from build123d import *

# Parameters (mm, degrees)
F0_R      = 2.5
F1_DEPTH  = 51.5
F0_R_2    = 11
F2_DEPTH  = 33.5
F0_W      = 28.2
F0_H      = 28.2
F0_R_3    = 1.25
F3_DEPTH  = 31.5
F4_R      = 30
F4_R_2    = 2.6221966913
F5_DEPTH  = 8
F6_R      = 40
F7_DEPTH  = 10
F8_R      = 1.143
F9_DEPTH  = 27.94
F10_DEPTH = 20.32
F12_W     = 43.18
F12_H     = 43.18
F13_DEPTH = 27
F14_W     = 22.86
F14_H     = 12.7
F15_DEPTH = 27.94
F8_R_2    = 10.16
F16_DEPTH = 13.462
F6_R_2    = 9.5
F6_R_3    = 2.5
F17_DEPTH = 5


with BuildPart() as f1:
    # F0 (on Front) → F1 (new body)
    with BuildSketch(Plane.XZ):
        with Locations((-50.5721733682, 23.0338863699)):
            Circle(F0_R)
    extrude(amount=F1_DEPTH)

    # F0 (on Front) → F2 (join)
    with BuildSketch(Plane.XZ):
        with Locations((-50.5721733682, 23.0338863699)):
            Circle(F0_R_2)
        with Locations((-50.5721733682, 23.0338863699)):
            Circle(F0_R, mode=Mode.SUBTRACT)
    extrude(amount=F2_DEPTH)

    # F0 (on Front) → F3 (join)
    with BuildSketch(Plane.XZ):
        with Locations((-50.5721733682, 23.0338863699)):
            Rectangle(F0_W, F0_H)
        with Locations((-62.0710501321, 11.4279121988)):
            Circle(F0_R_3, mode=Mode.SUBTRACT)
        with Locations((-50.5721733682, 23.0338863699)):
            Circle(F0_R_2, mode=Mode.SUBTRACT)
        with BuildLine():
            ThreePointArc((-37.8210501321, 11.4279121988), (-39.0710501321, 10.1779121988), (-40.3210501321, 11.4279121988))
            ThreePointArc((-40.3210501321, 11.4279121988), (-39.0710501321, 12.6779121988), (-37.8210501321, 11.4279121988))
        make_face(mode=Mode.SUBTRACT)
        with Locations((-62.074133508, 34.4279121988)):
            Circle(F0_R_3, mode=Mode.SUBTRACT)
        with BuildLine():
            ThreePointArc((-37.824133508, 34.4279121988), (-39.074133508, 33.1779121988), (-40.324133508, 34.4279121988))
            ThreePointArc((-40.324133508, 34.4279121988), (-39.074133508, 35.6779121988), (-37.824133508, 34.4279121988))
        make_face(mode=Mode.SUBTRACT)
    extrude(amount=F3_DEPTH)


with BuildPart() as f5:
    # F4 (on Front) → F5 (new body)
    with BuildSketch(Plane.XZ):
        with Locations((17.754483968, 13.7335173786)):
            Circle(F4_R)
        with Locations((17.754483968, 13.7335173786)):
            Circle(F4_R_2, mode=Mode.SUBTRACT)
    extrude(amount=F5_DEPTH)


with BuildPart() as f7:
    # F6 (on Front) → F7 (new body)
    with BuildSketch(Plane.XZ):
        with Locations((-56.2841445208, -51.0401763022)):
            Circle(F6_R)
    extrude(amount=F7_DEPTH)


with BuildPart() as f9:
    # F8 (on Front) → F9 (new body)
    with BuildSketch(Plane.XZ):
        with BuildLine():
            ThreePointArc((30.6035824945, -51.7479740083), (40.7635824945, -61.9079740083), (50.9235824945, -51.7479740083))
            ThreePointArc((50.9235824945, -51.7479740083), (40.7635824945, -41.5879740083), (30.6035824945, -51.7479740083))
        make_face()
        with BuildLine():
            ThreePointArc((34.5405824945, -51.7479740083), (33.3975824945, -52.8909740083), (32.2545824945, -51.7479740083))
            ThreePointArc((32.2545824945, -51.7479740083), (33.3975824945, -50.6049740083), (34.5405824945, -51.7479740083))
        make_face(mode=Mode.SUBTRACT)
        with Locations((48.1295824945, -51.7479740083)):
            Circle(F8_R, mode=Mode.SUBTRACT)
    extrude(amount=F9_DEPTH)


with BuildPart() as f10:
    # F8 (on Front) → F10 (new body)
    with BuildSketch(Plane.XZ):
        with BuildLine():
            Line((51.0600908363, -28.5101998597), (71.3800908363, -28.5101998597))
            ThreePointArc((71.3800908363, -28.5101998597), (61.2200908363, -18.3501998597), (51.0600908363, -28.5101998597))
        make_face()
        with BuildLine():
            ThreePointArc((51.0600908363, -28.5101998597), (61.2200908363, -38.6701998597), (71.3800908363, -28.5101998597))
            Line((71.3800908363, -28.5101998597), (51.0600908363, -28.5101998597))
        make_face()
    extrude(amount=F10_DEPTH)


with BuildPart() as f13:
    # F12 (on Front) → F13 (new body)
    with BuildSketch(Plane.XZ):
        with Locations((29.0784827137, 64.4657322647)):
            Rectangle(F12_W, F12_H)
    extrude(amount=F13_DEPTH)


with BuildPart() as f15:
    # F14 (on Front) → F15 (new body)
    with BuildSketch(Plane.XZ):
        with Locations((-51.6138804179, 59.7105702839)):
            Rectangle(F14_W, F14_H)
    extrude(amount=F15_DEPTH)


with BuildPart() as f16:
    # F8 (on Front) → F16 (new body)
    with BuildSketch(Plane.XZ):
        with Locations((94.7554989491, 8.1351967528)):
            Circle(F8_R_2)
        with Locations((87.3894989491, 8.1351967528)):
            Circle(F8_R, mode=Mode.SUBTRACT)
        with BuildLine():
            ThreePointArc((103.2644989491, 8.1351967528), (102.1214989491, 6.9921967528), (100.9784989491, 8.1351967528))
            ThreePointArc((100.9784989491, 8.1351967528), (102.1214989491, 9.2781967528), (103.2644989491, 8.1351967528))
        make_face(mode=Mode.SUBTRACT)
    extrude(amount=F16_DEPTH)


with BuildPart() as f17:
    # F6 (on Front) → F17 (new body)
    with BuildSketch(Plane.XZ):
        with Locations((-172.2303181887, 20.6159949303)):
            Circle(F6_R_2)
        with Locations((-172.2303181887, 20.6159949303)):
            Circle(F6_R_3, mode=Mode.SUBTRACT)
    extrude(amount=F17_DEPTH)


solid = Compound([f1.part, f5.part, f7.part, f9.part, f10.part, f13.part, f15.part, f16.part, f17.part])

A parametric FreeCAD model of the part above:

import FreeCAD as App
import Part
import Sketcher
Q = App.Units.Quantity

doc = App.newDocument("Part")
params = doc.addObject("Spreadsheet::Sheet", "Params")
for row, (alias, value) in enumerate([
    ("sketch1_diameter", "5 mm"),
    ("pad1_length", "51.5 mm"),
    ("sketch2_diameter", "22 mm"),
    ("sketch2_diameter2", "5 mm"),
    ("pad2_length", "33.5 mm"),
    ("sketch3_diameter", "22 mm"),
    ("sketch3_diameter2", "2.5 mm"),
    ("sketch3_width", "28.2 mm"),
    ("pad3_length", "31.5 mm"),
    ("sketch4_diameter", "60 mm"),
    ("pad4_length", "8 mm"),
    ("sketch5_diameter", "80 mm"),
    ("pad5_length", "10 mm"),
    ("sketch6_diameter", "20.32 mm"),
    ("pad6_length", "27.94 mm"),
    ("sketch7_diameter", "20.32 mm"),
    ("pad7_length", "20.32 mm"),
    ("sketch8_width", "43.18 mm"),
    ("pad8_length", "27 mm"),
    ("sketch9_height", "12.7 mm"),
    ("sketch9_width", "22.86 mm"),
    ("pad9_length", "27.94 mm"),
    ("sketch10_diameter", "20.32 mm"),
    ("pad10_length", "13.462 mm"),
    ("sketch11_diameter", "19 mm"),
    ("sketch11_diameter2", "5 mm"),
    ("pad11_length", "5 mm"),
], start=1):
    params.set(f"A{row}", alias)
    params.set(f"B{row}", "=" + value)
    params.setAlias(f"B{row}", alias)

body = doc.addObject("PartDesign::Body", "Body")

# Sketch on XZ plane
sketch1 = doc.addObject("Sketcher::SketchObject", "Sketch")
body.addObject(sketch1)
sketch1.AttachmentSupport = (doc.XZ_Plane, [""])
sketch1.MapMode = "FlatFace"
sketch1.addGeometry(Part.Circle(App.Vector(-50.6, 23, 0), App.Vector(0, 0, 1), 2.5), False)
sketch1.addConstraint([
    Sketcher.Constraint("Diameter", 0, Q("5 mm")),
    Sketcher.Constraint("DistanceX", 0, 3, -1, 1, Q("50.572173 mm")),
    Sketcher.Constraint("DistanceY", -1, 1, 0, 3, Q("23.033886 mm")),
])
sketch1.setExpression("Constraints[0]", "Params.sketch1_diameter")
pad1 = doc.addObject("PartDesign::Pad", "Pad")
body.addObject(pad1)
pad1.Profile = sketch1
pad1.setExpression("Length", "Params.pad1_length")

# Sketch on XZ plane
sketch2 = doc.addObject("Sketcher::SketchObject", "Sketch001")
body.addObject(sketch2)
sketch2.AttachmentSupport = (doc.XZ_Plane, [""])
sketch2.MapMode = "FlatFace"
sketch2.addGeometry([
    Part.Circle(App.Vector(-50.6, 23, 0), App.Vector(0, 0, 1), 11),
    Part.Circle(App.Vector(-50.6, 23, 0), App.Vector(0, 0, 1), 2.5),
], False)
sketch2.addConstraint([
    Sketcher.Constraint("Coincident", 1, 3, 0, 3),
    Sketcher.Constraint("Diameter", 0, Q("22 mm")),
    Sketcher.Constraint("Diameter", 1, Q("5 mm")),
    Sketcher.Constraint("DistanceX", 0, 3, -1, 1, Q("50.572173 mm")),
    Sketcher.Constraint("DistanceY", -1, 1, 0, 3, Q("23.033886 mm")),
])
sketch2.setExpression("Constraints[1]", "Params.sketch2_diameter")
sketch2.setExpression("Constraints[2]", "Params.sketch2_diameter2")
pad2 = doc.addObject("PartDesign::Pad", "Pad001")
body.addObject(pad2)
pad2.Profile = sketch2
pad2.setExpression("Length", "Params.pad2_length")

# Sketch on XZ plane
sketch3 = doc.addObject("Sketcher::SketchObject", "Sketch002")
body.addObject(sketch3)
sketch3.AttachmentSupport = (doc.XZ_Plane, [""])
sketch3.MapMode = "FlatFace"
sketch3.addGeometry([
    Part.LineSegment(App.Vector(-64.7, 37.1, 0), App.Vector(-64.7, 8.9, 0)),  # 0
    Part.LineSegment(App.Vector(-64.7, 8.9, 0), App.Vector(-36.5, 8.9, 0)),  # 1
    Part.LineSegment(App.Vector(-36.5, 8.9, 0), App.Vector(-36.5, 37.1, 0)),  # 2
    Part.LineSegment(App.Vector(-36.5, 37.1, 0), App.Vector(-64.7, 37.1, 0)),  # 3
    Part.Circle(App.Vector(-62.1, 11.4, 0), App.Vector(0, 0, 1), 1.2),  # 4
    Part.Circle(App.Vector(-39.1, 11.4, 0), App.Vector(0, 0, 1), 1.2),  # 5
    Part.Circle(App.Vector(-62.1, 34.4, 0), App.Vector(0, 0, 1), 1.2),  # 6
    Part.Circle(App.Vector(-50.6, 23, 0), App.Vector(0, 0, 1), 11),  # 7
    Part.Circle(App.Vector(-39.1, 34.4, 0), App.Vector(0, 0, 1), 1.2),  # 8
], False)
sketch3.addConstraint([
    Sketcher.Constraint("Coincident", 0, 2, 1, 1),
    Sketcher.Constraint("Coincident", 1, 2, 2, 1),
    Sketcher.Constraint("Coincident", 2, 2, 3, 1),
    Sketcher.Constraint("Coincident", 3, 2, 0, 1),
    Sketcher.Constraint("Vertical", 0),
    Sketcher.Constraint("Horizontal", 1),
    Sketcher.Constraint("Vertical", 2),
    Sketcher.Constraint("Horizontal", 3),
    Sketcher.Constraint("Equal", 4, 5),
    Sketcher.Constraint("Equal", 5, 6),
    Sketcher.Constraint("Equal", 6, 8),
    Sketcher.Constraint("Horizontal", 4, 3, 5, 3),
    Sketcher.Constraint("Horizontal", 6, 3, 8, 3),
    Sketcher.Constraint("Equal", 3, 0),
    Sketcher.Constraint("Diameter", 7, Q("22 mm")),
    Sketcher.Constraint("Diameter", 4, Q("2.5 mm")),
    Sketcher.Constraint("DistanceX", 1, 1, 1, 2, Q("28.2 mm")),
    Sketcher.Constraint("DistanceX", 4, 3, 5, 3, Q("23 mm")),
    Sketcher.Constraint("DistanceY", 4, 3, 6, 3, Q("23 mm")),
    Sketcher.Constraint("DistanceX", 6, 3, 8, 3, Q("23 mm")),
    Sketcher.Constraint("DistanceX", 0, 2, 7, 3, Q("14.1 mm")),
    Sketcher.Constraint("DistanceY", 0, 2, 7, 3, Q("14.1 mm")),
    Sketcher.Constraint("DistanceX", 4, 3, -1, 1, Q("62.07105 mm")),
    Sketcher.Constraint("DistanceX", 6, 3, 7, 3, Q("11.50196 mm")),
    Sketcher.Constraint("DistanceY", -1, 1, 4, 3, Q("11.427912 mm")),
    Sketcher.Constraint("DistanceX", 6, 3, -1, 1, Q("62.074134 mm")),
    Sketcher.Constraint("DistanceY", -1, 1, 7, 3, Q("23.033886 mm")),
])
sketch3.setExpression("Constraints[14]", "Params.sketch3_diameter")
sketch3.setExpression("Constraints[15]", "Params.sketch3_diameter2")
sketch3.setExpression("Constraints[16]", "Params.sketch3_width")
pad3 = doc.addObject("PartDesign::Pad", "Pad002")
body.addObject(pad3)
pad3.Profile = sketch3
pad3.setExpression("Length", "Params.pad3_length")
body2 = doc.addObject("PartDesign::Body", "Body001")

# Sketch on XZ plane
sketch4 = doc.addObject("Sketcher::SketchObject", "Sketch003")
body2.addObject(sketch4)
sketch4.AttachmentSupport = (doc.getObject("XZ_Plane001"), [""])
sketch4.MapMode = "FlatFace"
sketch4.addGeometry([
    Part.Circle(App.Vector(17.8, 13.7, 0), App.Vector(0, 0, 1), 30),
    Part.Circle(App.Vector(17.8, 13.7, 0), App.Vector(0, 0, 1), 2.6),
], False)
sketch4.addConstraint([
    Sketcher.Constraint("Coincident", 1, 3, 0, 3),
    Sketcher.Constraint("Diameter", 0, Q("60 mm")),
    Sketcher.Constraint("Diameter", 1, Q("5.244393 mm")),
    Sketcher.Constraint("DistanceX", -1, 1, 0, 3, Q("17.754484 mm")),
    Sketcher.Constraint("DistanceY", -1, 1, 0, 3, Q("13.733517 mm")),
])
sketch4.setExpression("Constraints[1]", "Params.sketch4_diameter")
pad4 = doc.addObject("PartDesign::Pad", "Pad003")
body2.addObject(pad4)
pad4.Profile = sketch4
pad4.setExpression("Length", "Params.pad4_length")
body3 = doc.addObject("PartDesign::Body", "Body002")

# Sketch on XZ plane
sketch5 = doc.addObject("Sketcher::SketchObject", "Sketch004")
body3.addObject(sketch5)
sketch5.AttachmentSupport = (doc.getObject("XZ_Plane002"), [""])
sketch5.MapMode = "FlatFace"
sketch5.addGeometry(Part.Circle(App.Vector(-56, -51, 0), App.Vector(0, 0, 1), 40), False)
sketch5.addConstraint([
    Sketcher.Constraint("Diameter", 0, Q("80 mm")),
    Sketcher.Constraint("DistanceX", 0, 3, -1, 1, Q("56.284145 mm")),
    Sketcher.Constraint("DistanceY", 0, 3, -1, 1, Q("51.040176 mm")),
])
sketch5.setExpression("Constraints[0]", "Params.sketch5_diameter")
pad5 = doc.addObject("PartDesign::Pad", "Pad004")
body3.addObject(pad5)
pad5.Profile = sketch5
pad5.setExpression("Length", "Params.pad5_length")
body4 = doc.addObject("PartDesign::Body", "Body003")

# Sketch on XZ plane
sketch6 = doc.addObject("Sketcher::SketchObject", "Sketch005")
body4.addObject(sketch6)
sketch6.AttachmentSupport = (doc.getObject("XZ_Plane003"), [""])
sketch6.MapMode = "FlatFace"
sketch6.addGeometry([
    Part.Circle(App.Vector(40.8, -51.7, 0), App.Vector(0, 0, 1), 10.2),
    Part.Circle(App.Vector(33.4, -51.7, 0), App.Vector(0, 0, 1), 1.1),
    Part.Circle(App.Vector(48.1, -51.7, 0), App.Vector(0, 0, 1), 1.1),
], False)
sketch6.addConstraint([
    Sketcher.Constraint("Equal", 1, 2),
    Sketcher.Constraint("Horizontal", 0, 3, 1, 3),
    Sketcher.Constraint("Horizontal", 1, 3, 2, 3),
    Sketcher.Constraint("Diameter", 0, Q("20.32 mm")),
    Sketcher.Constraint("Diameter", 1, Q("2.286 mm")),
    Sketcher.Constraint("DistanceX", 1, 3, 0, 3, Q("7.366 mm")),
    Sketcher.Constraint("DistanceX", 0, 3, 2, 3, Q("7.366 mm")),
    Sketcher.Constraint("DistanceX", -1, 1, 0, 3, Q("40.763582 mm")),
    Sketcher.Constraint("DistanceY", 0, 3, -1, 1, Q("51.747974 mm")),
])
sketch6.setExpression("Constraints[3]", "Params.sketch6_diameter")
pad6 = doc.addObject("PartDesign::Pad", "Pad005")
body4.addObject(pad6)
pad6.Profile = sketch6
pad6.setExpression("Length", "Params.pad6_length")
body5 = doc.addObject("PartDesign::Body", "Body004")

# Sketch on XZ plane
sketch7 = doc.addObject("Sketcher::SketchObject", "Sketch006")
body5.addObject(sketch7)
sketch7.AttachmentSupport = (doc.getObject("XZ_Plane004"), [""])
sketch7.MapMode = "FlatFace"
sketch7.addGeometry(Part.Circle(App.Vector(61, -29, 0), App.Vector(0, 0, 1), 10), False)
sketch7.addConstraint([
    Sketcher.Constraint("Diameter", 0, Q("20.32 mm")),
    Sketcher.Constraint("DistanceY", 0, 3, -1, 1, Q("28.5102 mm")),
    Sketcher.Constraint("DistanceX", -1, 1, 0, 3, Q("61.220091 mm")),
])
sketch7.setExpression("Constraints[0]", "Params.sketch7_diameter")
pad7 = doc.addObject("PartDesign::Pad", "Pad006")
body5.addObject(pad7)
pad7.Profile = sketch7
pad7.setExpression("Length", "Params.pad7_length")
body6 = doc.addObject("PartDesign::Body", "Body005")

# Sketch on XZ plane
sketch8 = doc.addObject("Sketcher::SketchObject", "Sketch007")
body6.addObject(sketch8)
sketch8.AttachmentSupport = (doc.getObject("XZ_Plane005"), [""])
sketch8.MapMode = "FlatFace"
sketch8.addGeometry([
    Part.LineSegment(App.Vector(7, 86, 0), App.Vector(7, 43, 0)),
    Part.LineSegment(App.Vector(7, 43, 0), App.Vector(51, 43, 0)),
    Part.LineSegment(App.Vector(51, 43, 0), App.Vector(51, 86, 0)),
    Part.LineSegment(App.Vector(51, 86, 0), App.Vector(7, 86, 0)),
], False)
sketch8.addConstraint([
    Sketcher.Constraint("Coincident", 0, 2, 1, 1),
    Sketcher.Constraint("Coincident", 1, 2, 2, 1),
    Sketcher.Constraint("Coincident", 2, 2, 3, 1),
    Sketcher.Constraint("Coincident", 3, 2, 0, 1),
    Sketcher.Constraint("Vertical", 0),
    Sketcher.Constraint("Horizontal", 1),
    Sketcher.Constraint("Vertical", 2),
    Sketcher.Constraint("Horizontal", 3),
    Sketcher.Constraint("Equal", 3, 0),
    Sketcher.Constraint("DistanceX", 1, 1, 1, 2, Q("43.18 mm")),
    Sketcher.Constraint("DistanceX", -1, 1, 0, 2, Q("7.488483 mm")),
    Sketcher.Constraint("DistanceY", -1, 1, 0, 2, Q("42.875732 mm")),
])
sketch8.setExpression("Constraints[9]", "Params.sketch8_width")
pad8 = doc.addObject("PartDesign::Pad", "Pad007")
body6.addObject(pad8)
pad8.Profile = sketch8
pad8.setExpression("Length", "Params.pad8_length")
body7 = doc.addObject("PartDesign::Body", "Body006")

# Sketch on XZ plane
sketch9 = doc.addObject("Sketcher::SketchObject", "Sketch008")
body7.addObject(sketch9)
sketch9.AttachmentSupport = (doc.getObject("XZ_Plane006"), [""])
sketch9.MapMode = "FlatFace"
sketch9.addGeometry([
    Part.LineSegment(App.Vector(-63, 66, 0), App.Vector(-63, 53, 0)),
    Part.LineSegment(App.Vector(-63, 53, 0), App.Vector(-40, 53, 0)),
    Part.LineSegment(App.Vector(-40, 53, 0), App.Vector(-40, 66, 0)),
    Part.LineSegment(App.Vector(-40, 66, 0), App.Vector(-63, 66, 0)),
], False)
sketch9.addConstraint([
    Sketcher.Constraint("Coincident", 0, 2, 1, 1),
    Sketcher.Constraint("Coincident", 1, 2, 2, 1),
    Sketcher.Constraint("Coincident", 2, 2, 3, 1),
    Sketcher.Constraint("Coincident", 3, 2, 0, 1),
    Sketcher.Constraint("Vertical", 0),
    Sketcher.Constraint("Horizontal", 1),
    Sketcher.Constraint("Vertical", 2),
    Sketcher.Constraint("Horizontal", 3),
    Sketcher.Constraint("DistanceY", 0, 2, 0, 1, Q("12.7 mm")),
    Sketcher.Constraint("DistanceX", 1, 1, 1, 2, Q("22.86 mm")),
    Sketcher.Constraint("DistanceX", 0, 2, -1, 1, Q("63.04388 mm")),
    Sketcher.Constraint("DistanceY", -1, 1, 0, 2, Q("53.36057 mm")),
])
sketch9.setExpression("Constraints[8]", "Params.sketch9_height")
sketch9.setExpression("Constraints[9]", "Params.sketch9_width")
pad9 = doc.addObject("PartDesign::Pad", "Pad008")
body7.addObject(pad9)
pad9.Profile = sketch9
pad9.setExpression("Length", "Params.pad9_length")
body8 = doc.addObject("PartDesign::Body", "Body007")

# Sketch on XZ plane
sketch10 = doc.addObject("Sketcher::SketchObject", "Sketch009")
body8.addObject(sketch10)
sketch10.AttachmentSupport = (doc.getObject("XZ_Plane007"), [""])
sketch10.MapMode = "FlatFace"
sketch10.addGeometry([
    Part.Circle(App.Vector(94.8, 8.1, 0), App.Vector(0, 0, 1), 10.2),
    Part.Circle(App.Vector(102.1, 8.1, 0), App.Vector(0, 0, 1), 1.1),
    Part.Circle(App.Vector(87.4, 8.1, 0), App.Vector(0, 0, 1), 1.1),
], False)
sketch10.addConstraint([
    Sketcher.Constraint("Equal", 1, 2),
    Sketcher.Constraint("Horizontal", 0, 3, 1, 3),
    Sketcher.Constraint("Horizontal", 1, 3, 2, 3),
    Sketcher.Constraint("Diameter", 0, Q("20.32 mm")),
    Sketcher.Constraint("Diameter", 1, Q("2.286 mm")),
    Sketcher.Constraint("DistanceX", 0, 3, 1, 3, Q("7.366 mm")),
    Sketcher.Constraint("DistanceX", 2, 3, 0, 3, Q("7.366 mm")),
    Sketcher.Constraint("DistanceX", -1, 1, 0, 3, Q("94.755499 mm")),
    Sketcher.Constraint("DistanceY", -1, 1, 0, 3, Q("8.135197 mm")),
])
sketch10.setExpression("Constraints[3]", "Params.sketch10_diameter")
pad10 = doc.addObject("PartDesign::Pad", "Pad009")
body8.addObject(pad10)
pad10.Profile = sketch10
pad10.setExpression("Length", "Params.pad10_length")
body9 = doc.addObject("PartDesign::Body", "Body008")

# Sketch on XZ plane
sketch11 = doc.addObject("Sketcher::SketchObject", "Sketch010")
body9.addObject(sketch11)
sketch11.AttachmentSupport = (doc.getObject("XZ_Plane008"), [""])
sketch11.MapMode = "FlatFace"
sketch11.addGeometry([
    Part.Circle(App.Vector(-172.2, 20.6, 0), App.Vector(0, 0, 1), 9.5),
    Part.Circle(App.Vector(-172.2, 20.6, 0), App.Vector(0, 0, 1), 2.5),
], False)
sketch11.addConstraint([
    Sketcher.Constraint("Coincident", 1, 3, 0, 3),
    Sketcher.Constraint("Diameter", 0, Q("19 mm")),
    Sketcher.Constraint("Diameter", 1, Q("5 mm")),
    Sketcher.Constraint("DistanceX", 0, 3, -1, 1, Q("172.230318 mm")),
    Sketcher.Constraint("DistanceY", -1, 1, 0, 3, Q("20.615995 mm")),
])
sketch11.setExpression("Constraints[1]", "Params.sketch11_diameter")
sketch11.setExpression("Constraints[2]", "Params.sketch11_diameter2")
pad11 = doc.addObject("PartDesign::Pad", "Pad010")
body9.addObject(pad11)
pad11.Profile = sketch11
pad11.setExpression("Length", "Params.pad11_length")

doc.recompute()
